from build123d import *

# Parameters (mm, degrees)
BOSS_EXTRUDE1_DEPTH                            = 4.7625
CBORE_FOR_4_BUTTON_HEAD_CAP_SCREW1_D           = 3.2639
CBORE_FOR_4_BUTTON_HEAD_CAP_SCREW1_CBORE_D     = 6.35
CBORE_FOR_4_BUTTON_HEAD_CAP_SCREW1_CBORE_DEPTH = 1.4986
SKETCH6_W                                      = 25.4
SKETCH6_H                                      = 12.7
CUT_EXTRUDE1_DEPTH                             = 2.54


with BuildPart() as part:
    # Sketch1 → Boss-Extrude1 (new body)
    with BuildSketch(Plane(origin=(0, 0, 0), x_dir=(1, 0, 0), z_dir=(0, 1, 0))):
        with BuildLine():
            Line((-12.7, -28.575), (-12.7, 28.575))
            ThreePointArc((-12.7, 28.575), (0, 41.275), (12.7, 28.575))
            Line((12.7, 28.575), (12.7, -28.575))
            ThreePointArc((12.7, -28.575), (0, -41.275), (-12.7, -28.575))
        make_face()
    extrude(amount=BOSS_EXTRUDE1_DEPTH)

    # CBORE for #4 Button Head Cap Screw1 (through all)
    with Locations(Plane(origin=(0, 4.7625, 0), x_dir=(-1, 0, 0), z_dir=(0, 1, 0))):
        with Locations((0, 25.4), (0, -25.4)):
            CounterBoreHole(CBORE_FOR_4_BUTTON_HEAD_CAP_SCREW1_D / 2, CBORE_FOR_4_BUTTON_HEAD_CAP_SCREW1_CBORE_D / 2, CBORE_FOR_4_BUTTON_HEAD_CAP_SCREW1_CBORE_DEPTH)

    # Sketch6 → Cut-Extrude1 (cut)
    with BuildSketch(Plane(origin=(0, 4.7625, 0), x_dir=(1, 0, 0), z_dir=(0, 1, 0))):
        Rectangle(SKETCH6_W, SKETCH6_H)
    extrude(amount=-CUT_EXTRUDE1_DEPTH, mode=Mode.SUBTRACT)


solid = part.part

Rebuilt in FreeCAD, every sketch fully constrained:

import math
import FreeCAD as App
import Part
import Sketcher

V = App.Vector
Q = App.Units.Quantity


def add_polygon(sketch, points):
    """Adds a closed chain of lines whose ends are joined by coincident constraints."""
    first, n = sketch.GeometryCount, len(points)
    for a, b in zip(points, points[1:] + points[:1]):
        sketch.addGeometry(Part.LineSegment(App.Vector(*a, 0), App.Vector(*b, 0)), False)
    for i in range(n):
        sketch.addConstraint(Sketcher.Constraint("Coincident", first + i, 2, first + (i + 1) % n, 1))

doc = App.newDocument("Part")
params = doc.addObject("Spreadsheet::Sheet", "Params")
for row, (alias, value) in enumerate([
    ("sketch1_radius", "0.5 in"),
    ("sketch1_height", "2.25 in"),
    ("pad1_length", "0.1875 in"),
    ("hole_diameter", "0.1285 in"),
    ("hole_cbore_diameter", "0.25 in"),
    ("hole_cbore_depth", "0.059 in"),
    ("sketch3_width", "1 in"),
    ("sketch3_height", "0.5 in"),
    ("pocket1_length", "0.1 in"),
], start=1):
    params.set(f"A{row}", alias)
    params.set(f"B{row}", "=" + value)
    params.setAlias(f"B{row}", alias)

body = doc.addObject("PartDesign::Body", "Body")

# Sketch on XZ plane
sketch1 = body.newObject("Sketcher::SketchObject", "Sketch")
sketch1.AttachmentSupport = (doc.getObject("XZ_Plane"), [""])
sketch1.MapMode = "FlatFace"
sketch1.addGeometry([
    Part.LineSegment(V(-12.7, -28.575, 0), V(-12.7, 28.575, 0)),
    Part.ArcOfCircle(Part.Circle(V(0, 28.575, 0), V(0, 0, 1), 12.7), math.radians(0), math.radians(180)),
    Part.LineSegment(V(12.7, 28.575, 0), V(12.7, -28.575, 0)),
    Part.ArcOfCircle(Part.Circle(V(0, -28.575, 0), V(0, 0, 1), 12.7), math.radians(180), math.radians(360)),
], False)
sketch1.addConstraint([
    Sketcher.Constraint("Tangent", 0, 2, 1, 2),
    Sketcher.Constraint("Tangent", 1, 1, 2, 1),
    Sketcher.Constraint("Tangent", 2, 2, 3, 2),
    Sketcher.Constraint("Tangent", 3, 1, 0, 1),
    Sketcher.Constraint("Vertical", 0),
    Sketcher.Constraint("Vertical", 2),
    Sketcher.Constraint("Symmetric", 1, 3, 3, 3, -1, 1),
    Sketcher.Constraint("Radius", 1, Q("0.5 in")),
    Sketcher.Constraint("DistanceY", 0, 1, 0, 2, Q("2.25 in")),
])
sketch1.setExpression("Constraints[7]", "Params.sketch1_radius")
sketch1.setExpression("Constraints[8]", "Params.sketch1_height")
pad1 = body.newObject("PartDesign::Pad", "Pad")
pad1.Profile = sketch1
pad1.setExpression("Length", "Params.pad1_length")
pad1.Reversed = True

# Sketch on XZ plane
sketch2 = body.newObject("Sketcher::SketchObject", "Sketch001")
sketch2.AttachmentSupport = (doc.getObject("XZ_Plane"), [""])
sketch2.MapMode = "FlatFace"
sketch2.AttachmentOffset = App.Placement(V(0, 0, -0.1875 * 25.4), App.Rotation())
sketch2.addGeometry([
    Part.Circle(V(0, 25.4, 0), V(0, 0, 1), 1.63195),
    Part.Circle(V(0, -25.4, 0), V(0, 0, 1), 1.63195),
], False)
sketch2.addConstraint([
    Sketcher.Constraint("Equal", 0, 1),
    Sketcher.Constraint("Symmetric", 0, 3, 1, 3, -1, 1),
    Sketcher.Constraint("PointOnObject", 0, 3, -2),
    Sketcher.Constraint("DistanceY", -1, 1, 0, 3, Q("1 in")),
    Sketcher.Constraint("Diameter", 0, Q("0.1285 in")),
])
doc.recompute()
hole = body.newObject("PartDesign::Hole", "Hole")
hole.Profile = sketch2
hole.ThreadType = "None"
hole.setExpression("Diameter", "Params.hole_diameter")
hole.DepthType = "ThroughAll"
hole.HoleCutType = "Counterbore"
hole.setExpression("HoleCutDiameter", "Params.hole_cbore_diameter")
hole.setExpression("HoleCutDepth", "Params.hole_cbore_depth")
hole.Reversed = True

# Sketch on XZ plane
sketch3 = body.newObject("Sketcher::SketchObject", "Sketch002")
sketch3.AttachmentSupport = (doc.getObject("XZ_Plane"), [""])
sketch3.MapMode = "FlatFace"
sketch3.AttachmentOffset = App.Placement(V(0, 0, -0.1875 * 25.4), App.Rotation())
add_polygon(sketch3, [(-12.7, -6.35), (-12.7, 6.35), (12.7, 6.35), (12.7, -6.35)])  # lines 0-3
sketch3.addConstraint([
    Sketcher.Constraint("Vertical", 0),
    Sketcher.Constraint("Horizontal", 1),
    Sketcher.Constraint("Vertical", 2),
    Sketcher.Constraint("Horizontal", 3),
    Sketcher.Constraint("Symmetric", 0, 2, 2, 2, -1, 1),
    Sketcher.Constraint("DistanceX", 1, 1, 1, 2, Q("1 in")),
    Sketcher.Constraint("DistanceY", 0, 1, 0, 2, Q("0.5 in")),
])
sketch3.setExpression("Constraints[9]", "Params.sketch3_width")
sketch3.setExpression("Constraints[10]", "Params.sketch3_height")
pocket1 = body.newObject("PartDesign::Pocket", "Pocket")
pocket1.Profile = sketch3
pocket1.setExpression("Length", "Params.pocket1_length")
pocket1.Reversed = True

doc.recompute()
